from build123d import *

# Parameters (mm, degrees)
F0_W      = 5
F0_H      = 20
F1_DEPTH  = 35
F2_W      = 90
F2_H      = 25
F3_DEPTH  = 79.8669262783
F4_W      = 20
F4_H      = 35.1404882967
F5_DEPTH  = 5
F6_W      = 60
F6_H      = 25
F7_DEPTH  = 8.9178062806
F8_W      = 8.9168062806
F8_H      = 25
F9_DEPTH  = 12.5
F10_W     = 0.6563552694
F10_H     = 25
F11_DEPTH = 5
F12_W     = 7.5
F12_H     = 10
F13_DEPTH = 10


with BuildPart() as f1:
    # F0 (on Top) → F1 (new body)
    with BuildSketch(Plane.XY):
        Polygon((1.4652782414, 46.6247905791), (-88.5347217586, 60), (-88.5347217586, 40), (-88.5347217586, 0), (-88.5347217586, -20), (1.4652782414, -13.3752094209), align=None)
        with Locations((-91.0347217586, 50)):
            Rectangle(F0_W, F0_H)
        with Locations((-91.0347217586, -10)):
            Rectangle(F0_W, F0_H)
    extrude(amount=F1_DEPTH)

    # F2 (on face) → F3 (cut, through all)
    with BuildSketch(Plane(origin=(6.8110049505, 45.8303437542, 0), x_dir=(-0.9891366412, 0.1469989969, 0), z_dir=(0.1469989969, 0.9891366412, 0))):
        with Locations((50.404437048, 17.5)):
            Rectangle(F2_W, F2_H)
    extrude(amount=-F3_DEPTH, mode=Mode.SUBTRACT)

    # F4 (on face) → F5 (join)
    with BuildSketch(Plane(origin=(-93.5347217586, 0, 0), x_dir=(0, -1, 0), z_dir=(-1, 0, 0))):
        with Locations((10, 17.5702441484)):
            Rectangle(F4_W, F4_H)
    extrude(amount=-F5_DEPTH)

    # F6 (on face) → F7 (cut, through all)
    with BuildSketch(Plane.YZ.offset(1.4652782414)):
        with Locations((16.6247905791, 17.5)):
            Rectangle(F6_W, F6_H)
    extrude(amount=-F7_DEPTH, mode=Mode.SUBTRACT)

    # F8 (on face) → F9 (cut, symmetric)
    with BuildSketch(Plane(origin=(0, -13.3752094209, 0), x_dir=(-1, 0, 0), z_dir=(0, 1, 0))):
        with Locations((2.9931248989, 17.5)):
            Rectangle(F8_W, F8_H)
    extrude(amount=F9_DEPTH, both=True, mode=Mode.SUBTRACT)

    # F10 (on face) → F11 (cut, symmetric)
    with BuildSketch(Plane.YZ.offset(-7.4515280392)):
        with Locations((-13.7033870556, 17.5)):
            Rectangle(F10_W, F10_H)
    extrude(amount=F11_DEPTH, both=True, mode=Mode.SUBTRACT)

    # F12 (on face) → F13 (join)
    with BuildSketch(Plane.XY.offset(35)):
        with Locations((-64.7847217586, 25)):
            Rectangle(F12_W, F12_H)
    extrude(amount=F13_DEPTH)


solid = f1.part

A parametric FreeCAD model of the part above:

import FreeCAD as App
import Part
import Sketcher
from FreeCAD import Vector


def add_polygon(sketch, points):
    """Adds a closed chain of lines whose ends are joined by coincident constraints."""
    first, n = sketch.GeometryCount, len(points)
    for a, b in zip(points, points[1:] + points[:1]):
        sketch.addGeometry(Part.LineSegment(App.Vector(*a, 0), App.Vector(*b, 0)), False)
    for i in range(n):
        sketch.addConstraint(Sketcher.Constraint("Coincident", first + i, 2, first + (i + 1) % n, 1))

doc = App.newDocument("Part")
body = doc.addObject("PartDesign::Body", "Body")

sketch1 = body.newObject("Sketcher::SketchObject", "Sketch")
sketch1.AttachmentSupport = (doc.getObject("XY_Plane"), [""])
sketch1.MapMode = "FlatFace"
add_polygon(sketch1, [(1, 47), (-89, 60), (-94, 60), (-94, 40), (-89, 40), (-89, 0), (-94, 0), (-94, -20), (-89, -20), (1, -13)])
sketch1.addConstraint(Sketcher.Constraint("Horizontal", 1))
sketch1.addConstraint(Sketcher.Constraint("Vertical", 2))
sketch1.addConstraint(Sketcher.Constraint("Horizontal", 3))
sketch1.addConstraint(Sketcher.Constraint("Vertical", 4))
sketch1.addConstraint(Sketcher.Constraint("Horizontal", 5))
sketch1.addConstraint(Sketcher.Constraint("Vertical", 6))
sketch1.addConstraint(Sketcher.Constraint("Horizontal", 7))
sketch1.addConstraint(Sketcher.Constraint("Vertical", 9))
sketch1.addConstraint(Sketcher.Constraint("PointOnObject", 4, 2, -1))
sketch1.addConstraint(Sketcher.Constraint("Vertical", 0, 2, 3, 2))
sketch1.addConstraint(Sketcher.Constraint("Vertical", 2, 2, 5, 2))
sketch1.addConstraint(Sketcher.Constraint("Vertical", 4, 2, 7, 2))
sketch1.addConstraint(Sketcher.Constraint("Equal", 2, 6))
sketch1.addConstraint(Sketcher.Constraint("DistanceX", 1, 2, 1, 1, 5.0))
sketch1.addConstraint(Sketcher.Constraint("DistanceY", 2, 2, 2, 1, 20.0))
sketch1.addConstraint(Sketcher.Constraint("DistanceY", 4, 2, 4, 1, 40.0))
sketch1.addConstraint(Sketcher.Constraint("DistanceY", 9, 1, 9, 2, 60.0))
sketch1.addConstraint(Sketcher.Constraint("DistanceX", 7, 2, 8, 2, 90.0))
sketch1.addConstraint(Sketcher.Constraint("Distance", 0, 90.98844))
sketch1.addConstraint(Sketcher.Constraint("DistanceX", 0, 2, -1, 1, 88.534722))
pad1 = body.newObject("PartDesign::Pad", "Pad")
pad1.Profile = sketch1
pad1.Length = 35

sketch2 = body.newObject("Sketcher::SketchObject", "Sketch001")
sketch2.Placement = App.Placement(Vector(6.811005, 45.830344, 0), App.Rotation(Vector(-0.989136641, 0.146998997, 0), Vector(0, 0, 1), Vector(0.146998997, 0.989136641, 0), "ZXY"))
add_polygon(sketch2, [(5, 30), (5, 5), (95, 5), (95, 30)])
sketch2.addConstraint(Sketcher.Constraint("Vertical", 0))
sketch2.addConstraint(Sketcher.Constraint("Horizontal", 1))
sketch2.addConstraint(Sketcher.Constraint("Vertical", 2))
sketch2.addConstraint(Sketcher.Constraint("Horizontal", 3))
sketch2.addConstraint(Sketcher.Constraint("DistanceX", 1, 1, 1, 2, 90.0))
sketch2.addConstraint(Sketcher.Constraint("DistanceY", 0, 2, 0, 1, 25.0))
sketch2.addConstraint(Sketcher.Constraint("DistanceY", -1, 1, 0, 2, 5.0))
sketch2.addConstraint(Sketcher.Constraint("DistanceX", -1, 1, 0, 2, 5.404437))
pocket1 = body.newObject("PartDesign::Pocket", "Pocket")
pocket1.Profile = sketch2
pocket1.Type = "ThroughAll"

sketch3 = body.newObject("Sketcher::SketchObject", "Sketch002")
sketch3.AttachmentSupport = (doc.getObject("YZ_Plane"), [""])
sketch3.MapMode = "FlatFace"
sketch3.AttachmentOffset = App.Placement(Vector(0, 0, -93.534722), App.Rotation())
add_polygon(sketch3, [(0, 35), (0, 0), (-20, 0), (-20, 35)])
sketch3.addConstraint(Sketcher.Constraint("Vertical", 0))
sketch3.addConstraint(Sketcher.Constraint("Horizontal", 1))
sketch3.addConstraint(Sketcher.Constraint("Vertical", 2))
sketch3.addConstraint(Sketcher.Constraint("Horizontal", 3))
sketch3.addConstraint(Sketcher.Constraint("Coincident", 0, 2, -1, 1))
sketch3.addConstraint(Sketcher.Constraint("DistanceX", 1, 2, 1, 1, 20.0))
sketch3.addConstraint(Sketcher.Constraint("DistanceY", 0, 2, 0, 1, 35.140488))
pad2 = body.newObject("PartDesign::Pad", "Pad001")
pad2.Profile = sketch3
pad2.Length = 5

sketch4 = body.newObject("Sketcher::SketchObject", "Sketch003")
sketch4.AttachmentSupport = (doc.getObject("YZ_Plane"), [""])
sketch4.MapMode = "FlatFace"
sketch4.AttachmentOffset = App.Placement(Vector(0, 0, 1.465278), App.Rotation())
add_polygon(sketch4, [(-13, 30), (-13, 5), (47, 5), (47, 30)])
sketch4.addConstraint(Sketcher.Constraint("Vertical", 0))
sketch4.addConstraint(Sketcher.Constraint("Horizontal", 1))
sketch4.addConstraint(Sketcher.Constraint("Vertical", 2))
sketch4.addConstraint(Sketcher.Constraint("Horizontal", 3))
sketch4.addConstraint(Sketcher.Constraint("DistanceX", 1, 1, 1, 2, 60.0))
sketch4.addConstraint(Sketcher.Constraint("DistanceY", 0, 2, 0, 1, 25.0))
sketch4.addConstraint(Sketcher.Constraint("DistanceY", -1, 1, 0, 2, 5.0))
sketch4.addConstraint(Sketcher.Constraint("DistanceX", 0, 2, -1, 1, 13.375209))
pocket2 = body.newObject("PartDesign::Pocket", "Pocket001")
pocket2.Profile = sketch4
pocket2.Length = 8.917806

sketch5 = body.newObject("Sketcher::SketchObject", "Sketch004")
sketch5.AttachmentSupport = (doc.getObject("XZ_Plane"), [""])
sketch5.MapMode = "FlatFace"
sketch5.AttachmentOffset = App.Placement(Vector(0, 0, 13.375209), App.Rotation())
add_polygon(sketch5, [(1, 30), (1, 5), (-7, 5), (-7, 30)])
sketch5.addConstraint(Sketcher.Constraint("Vertical", 0))
sketch5.addConstraint(Sketcher.Constraint("Horizontal", 1))
sketch5.addConstraint(Sketcher.Constraint("Vertical", 2))
sketch5.addConstraint(Sketcher.Constraint("Horizontal", 3))
sketch5.addConstraint(Sketcher.Constraint("DistanceY", 0, 2, 0, 1, 25.0))
sketch5.addConstraint(Sketcher.Constraint("DistanceY", -1, 1, 0, 2, 5.0))
sketch5.addConstraint(Sketcher.Constraint("DistanceX", 1, 2, 1, 1, 8.916806))
sketch5.addConstraint(Sketcher.Constraint("DistanceX", -1, 1, 0, 2, 1.465278))
pocket3 = body.newObject("PartDesign::Pocket", "Pocket002")
pocket3.Profile = sketch5
pocket3.Length = 25
pocket3.Midplane = True

sketch6 = body.newObject("Sketcher::SketchObject", "Sketch005")
sketch6.AttachmentSupport = (doc.getObject("YZ_Plane"), [""])
sketch6.MapMode = "FlatFace"
sketch6.AttachmentOffset = App.Placement(Vector(0, 0, -7.451528), App.Rotation())
add_polygon(sketch6, [(-14, 30), (-14, 5), (-13.4, 5), (-13.4, 30)])
sketch6.addConstraint(Sketcher.Constraint("Vertical", 0))
sketch6.addConstraint(Sketcher.Constraint("Horizontal", 1))
sketch6.addConstraint(Sketcher.Constraint("Vertical", 2))
sketch6.addConstraint(Sketcher.Constraint("Horizontal", 3))
sketch6.addConstraint(Sketcher.Constraint("DistanceY", 0, 2, 0, 1, 25.0))
sketch6.addConstraint(Sketcher.Constraint("DistanceY", -1, 1, 0, 2, 5.0))
sketch6.addConstraint(Sketcher.Constraint("DistanceX", 1, 1, 1, 2, 0.656355))
sketch6.addConstraint(Sketcher.Constraint("DistanceX", 1, 2, -1, 1, 13.375209))
pocket4 = body.newObject("PartDesign::Pocket", "Pocket003")
pocket4.Profile = sketch6
pocket4.Length = 10
pocket4.Midplane = True

sketch7 = body.newObject("Sketcher::SketchObject", "Sketch006")
sketch7.AttachmentSupport = (doc.getObject("XY_Plane"), [""])
sketch7.MapMode = "FlatFace"
sketch7.AttachmentOffset = App.Placement(Vector(0, 0, 35), App.Rotation())
add_polygon(sketch7, [(-69, 30), (-69, 20), (-61, 20), (-61, 30)])
sketch7.addConstraint(Sketcher.Constraint("Vertical", 0))
sketch7.addConstraint(Sketcher.Constraint("Horizontal", 1))
sketch7.addConstraint(Sketcher.Constraint("Vertical", 2))
sketch7.addConstraint(Sketcher.Constraint("Horizontal", 3))
sketch7.addConstraint(Sketcher.Constraint("DistanceY", 0, 2, 0, 1, 10.0))
sketch7.addConstraint(Sketcher.Constraint("DistanceX", 1, 1, 1, 2, 7.5))
sketch7.addConstraint(Sketcher.Constraint("DistanceY", -1, 1, 0, 2, 20.0))
sketch7.addConstraint(Sketcher.Constraint("DistanceX", 0, 2, -1, 1, 68.534722))
pad3 = body.newObject("PartDesign::Pad", "Pad002")
pad3.Profile = sketch7
pad3.Length = 10

doc.recompute()
